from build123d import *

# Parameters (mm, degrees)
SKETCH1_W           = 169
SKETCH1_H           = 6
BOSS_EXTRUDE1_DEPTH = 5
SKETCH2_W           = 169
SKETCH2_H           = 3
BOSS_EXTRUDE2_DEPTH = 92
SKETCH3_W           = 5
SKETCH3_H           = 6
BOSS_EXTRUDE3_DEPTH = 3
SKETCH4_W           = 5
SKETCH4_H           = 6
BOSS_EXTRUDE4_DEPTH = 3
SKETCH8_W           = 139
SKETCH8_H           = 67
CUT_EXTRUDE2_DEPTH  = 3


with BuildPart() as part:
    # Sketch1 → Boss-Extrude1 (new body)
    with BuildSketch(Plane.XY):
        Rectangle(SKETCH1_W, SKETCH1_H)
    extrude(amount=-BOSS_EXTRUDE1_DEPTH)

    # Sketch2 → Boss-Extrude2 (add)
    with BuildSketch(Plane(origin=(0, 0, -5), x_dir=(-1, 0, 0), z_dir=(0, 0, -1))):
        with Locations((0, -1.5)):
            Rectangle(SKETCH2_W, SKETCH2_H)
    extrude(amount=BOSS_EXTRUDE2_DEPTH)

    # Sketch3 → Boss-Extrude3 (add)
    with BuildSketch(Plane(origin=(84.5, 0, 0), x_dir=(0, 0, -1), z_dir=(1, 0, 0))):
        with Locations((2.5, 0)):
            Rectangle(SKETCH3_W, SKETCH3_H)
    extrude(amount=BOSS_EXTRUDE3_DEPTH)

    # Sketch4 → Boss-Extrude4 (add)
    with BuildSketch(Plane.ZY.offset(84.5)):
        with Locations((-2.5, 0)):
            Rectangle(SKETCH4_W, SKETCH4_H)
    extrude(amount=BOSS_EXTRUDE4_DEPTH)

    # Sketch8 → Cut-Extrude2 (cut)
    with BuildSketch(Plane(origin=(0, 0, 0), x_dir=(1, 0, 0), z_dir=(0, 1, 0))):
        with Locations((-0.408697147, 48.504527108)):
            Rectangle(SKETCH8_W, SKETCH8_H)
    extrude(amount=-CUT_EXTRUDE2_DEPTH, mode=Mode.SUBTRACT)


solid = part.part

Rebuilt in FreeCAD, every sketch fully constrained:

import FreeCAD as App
import Part
import Sketcher
Q = App.Units.Quantity


def add_polygon(sketch, points):
    """Adds a closed chain of lines whose ends are joined by coincident constraints."""
    first, n = sketch.GeometryCount, len(points)
    for a, b in zip(points, points[1:] + points[:1]):
        sketch.addGeometry(Part.LineSegment(App.Vector(*a, 0), App.Vector(*b, 0)), False)
    for i in range(n):
        sketch.addConstraint(Sketcher.Constraint("Coincident", first + i, 2, first + (i + 1) % n, 1))

doc = App.newDocument("Part")
body = doc.addObject("PartDesign::Body", "Body")

# Sketch on XY plane
sketch1 = body.newObject("Sketcher::SketchObject", "Sketch")
sketch1.AttachmentSupport = (doc.getObject("XY_Plane"), [""])
sketch1.MapMode = "FlatFace"
add_polygon(sketch1, [(-84.5, 3), (-84.5, -3), (84.5, -3), (84.5, 3)])  # lines 0-3
sketch1.addConstraint([
    Sketcher.Constraint("Vertical", 0),
    Sketcher.Constraint("Horizontal", 1),
    Sketcher.Constraint("Vertical", 2),
    Sketcher.Constraint("Horizontal", 3),
    Sketcher.Constraint("Symmetric", 0, 2, 2, 2, -1, 1),
    Sketcher.Constraint("DistanceX", 1, 1, 1, 2, Q("169 mm")),
    Sketcher.Constraint("DistanceY", 0, 2, 0, 1, Q("6 mm")),
])
pad1 = body.newObject("PartDesign::Pad", "Pad")
pad1.Profile = sketch1
pad1.Length = 5
pad1.Reversed = True

# Sketch on XY plane
sketch2 = body.newObject("Sketcher::SketchObject", "Sketch001")
sketch2.AttachmentSupport = (doc.getObject("XY_Plane"), [""])
sketch2.MapMode = "FlatFace"
sketch2.AttachmentOffset = App.Placement(App.Vector(0, 0, -5), App.Rotation())
add_polygon(sketch2, [(84.5, 0), (84.5, -3), (-84.5, -3), (-84.5, 0)])  # lines 0-3
sketch2.addConstraint([
    Sketcher.Constraint("Vertical", 0),
    Sketcher.Constraint("Horizontal", 1),
    Sketcher.Constraint("Vertical", 2),
    Sketcher.Constraint("Horizontal", 3),
    Sketcher.Constraint("Symmetric", 2, 2, 3, 2, -1, 1),
    Sketcher.Constraint("DistanceX", 1, 2, 1, 1, Q("169 mm")),
    Sketcher.Constraint("DistanceY", 0, 2, 0, 1, Q("3 mm")),
])
pad2 = body.newObject("PartDesign::Pad", "Pad001")
pad2.Profile = sketch2
pad2.Length = 92
pad2.Reversed = True

# Sketch on YZ plane
sketch3 = body.newObject("Sketcher::SketchObject", "Sketch002")
sketch3.AttachmentSupport = (doc.getObject("YZ_Plane"), [""])
sketch3.MapMode = "FlatFace"
sketch3.AttachmentOffset = App.Placement(App.Vector(0, 0, 84.5), App.Rotation())
add_polygon(sketch3, [(3, 0), (-3, 0), (-3, -5), (3, -5)])  # lines 0-3
sketch3.addConstraint([
    Sketcher.Constraint("Horizontal", 0),
    Sketcher.Constraint("Vertical", 1),
    Sketcher.Constraint("Horizontal", 2),
    Sketcher.Constraint("Vertical", 3),
    Sketcher.Constraint("Symmetric", 0, 2, 3, 2, -1, 1),
    Sketcher.Constraint("DistanceX", 0, 2, 0, 1, Q("6 mm")),
    Sketcher.Constraint("DistanceY", 1, 2, 1, 1, Q("5 mm")),
])
pad3 = body.newObject("PartDesign::Pad", "Pad002")
pad3.Profile = sketch3
pad3.Length = 3

# Sketch on YZ plane
sketch4 = body.newObject("Sketcher::SketchObject", "Sketch003")
sketch4.AttachmentSupport = (doc.getObject("YZ_Plane"), [""])
sketch4.MapMode = "FlatFace"
sketch4.AttachmentOffset = App.Placement(App.Vector(0, 0, -84.5), App.Rotation())
add_polygon(sketch4, [(3, -5), (-3, -5), (-3, 0), (3, 0)])  # lines 0-3
sketch4.addConstraint([
    Sketcher.Constraint("Horizontal", 0),
    Sketcher.Constraint("Vertical", 1),
    Sketcher.Constraint("Horizontal", 2),
    Sketcher.Constraint("Vertical", 3),
    Sketcher.Constraint("Symmetric", 1, 2, 2, 2, -1, 1),
    Sketcher.Constraint("DistanceX", 0, 2, 0, 1, Q("6 mm")),
    Sketcher.Constraint("DistanceY", 1, 1, 1, 2, Q("5 mm")),
])
pad4 = body.newObject("PartDesign::Pad", "Pad003")
pad4.Profile = sketch4
pad4.Length = 3
pad4.Reversed = True

# Sketch on XZ plane
sketch5 = body.newObject("Sketcher::SketchObject", "Sketch004")
sketch5.AttachmentSupport = (doc.getObject("XZ_Plane"), [""])
sketch5.MapMode = "FlatFace"
add_polygon(sketch5, [(-69.908697, -82.004527), (-69.908697, -15.004527), (69.091303, -15.004527), (69.091303, -82.004527)])  # lines 0-3
sketch5.addConstraint([
    Sketcher.Constraint("Vertical", 0),
    Sketcher.Constraint("Horizontal", 1),
    Sketcher.Constraint("Vertical", 2),
    Sketcher.Constraint("Horizontal", 3),
    Sketcher.Constraint("DistanceX", 1, 1, 1, 2, Q("139 mm")),
    Sketcher.Constraint("DistanceY", 0, 1, 0, 2, Q("67 mm")),
    Sketcher.Constraint("DistanceX", 0, 2, -1, 1, Q("69.908697 mm")),
    Sketcher.Constraint("DistanceY", 0, 2, -1, 1, Q("15.004527 mm")),
])
pocket1 = body.newObject("PartDesign::Pocket", "Pocket")
pocket1.Profile = sketch5
pocket1.Length = 3
pocket1.Reversed = True

doc.recompute()
